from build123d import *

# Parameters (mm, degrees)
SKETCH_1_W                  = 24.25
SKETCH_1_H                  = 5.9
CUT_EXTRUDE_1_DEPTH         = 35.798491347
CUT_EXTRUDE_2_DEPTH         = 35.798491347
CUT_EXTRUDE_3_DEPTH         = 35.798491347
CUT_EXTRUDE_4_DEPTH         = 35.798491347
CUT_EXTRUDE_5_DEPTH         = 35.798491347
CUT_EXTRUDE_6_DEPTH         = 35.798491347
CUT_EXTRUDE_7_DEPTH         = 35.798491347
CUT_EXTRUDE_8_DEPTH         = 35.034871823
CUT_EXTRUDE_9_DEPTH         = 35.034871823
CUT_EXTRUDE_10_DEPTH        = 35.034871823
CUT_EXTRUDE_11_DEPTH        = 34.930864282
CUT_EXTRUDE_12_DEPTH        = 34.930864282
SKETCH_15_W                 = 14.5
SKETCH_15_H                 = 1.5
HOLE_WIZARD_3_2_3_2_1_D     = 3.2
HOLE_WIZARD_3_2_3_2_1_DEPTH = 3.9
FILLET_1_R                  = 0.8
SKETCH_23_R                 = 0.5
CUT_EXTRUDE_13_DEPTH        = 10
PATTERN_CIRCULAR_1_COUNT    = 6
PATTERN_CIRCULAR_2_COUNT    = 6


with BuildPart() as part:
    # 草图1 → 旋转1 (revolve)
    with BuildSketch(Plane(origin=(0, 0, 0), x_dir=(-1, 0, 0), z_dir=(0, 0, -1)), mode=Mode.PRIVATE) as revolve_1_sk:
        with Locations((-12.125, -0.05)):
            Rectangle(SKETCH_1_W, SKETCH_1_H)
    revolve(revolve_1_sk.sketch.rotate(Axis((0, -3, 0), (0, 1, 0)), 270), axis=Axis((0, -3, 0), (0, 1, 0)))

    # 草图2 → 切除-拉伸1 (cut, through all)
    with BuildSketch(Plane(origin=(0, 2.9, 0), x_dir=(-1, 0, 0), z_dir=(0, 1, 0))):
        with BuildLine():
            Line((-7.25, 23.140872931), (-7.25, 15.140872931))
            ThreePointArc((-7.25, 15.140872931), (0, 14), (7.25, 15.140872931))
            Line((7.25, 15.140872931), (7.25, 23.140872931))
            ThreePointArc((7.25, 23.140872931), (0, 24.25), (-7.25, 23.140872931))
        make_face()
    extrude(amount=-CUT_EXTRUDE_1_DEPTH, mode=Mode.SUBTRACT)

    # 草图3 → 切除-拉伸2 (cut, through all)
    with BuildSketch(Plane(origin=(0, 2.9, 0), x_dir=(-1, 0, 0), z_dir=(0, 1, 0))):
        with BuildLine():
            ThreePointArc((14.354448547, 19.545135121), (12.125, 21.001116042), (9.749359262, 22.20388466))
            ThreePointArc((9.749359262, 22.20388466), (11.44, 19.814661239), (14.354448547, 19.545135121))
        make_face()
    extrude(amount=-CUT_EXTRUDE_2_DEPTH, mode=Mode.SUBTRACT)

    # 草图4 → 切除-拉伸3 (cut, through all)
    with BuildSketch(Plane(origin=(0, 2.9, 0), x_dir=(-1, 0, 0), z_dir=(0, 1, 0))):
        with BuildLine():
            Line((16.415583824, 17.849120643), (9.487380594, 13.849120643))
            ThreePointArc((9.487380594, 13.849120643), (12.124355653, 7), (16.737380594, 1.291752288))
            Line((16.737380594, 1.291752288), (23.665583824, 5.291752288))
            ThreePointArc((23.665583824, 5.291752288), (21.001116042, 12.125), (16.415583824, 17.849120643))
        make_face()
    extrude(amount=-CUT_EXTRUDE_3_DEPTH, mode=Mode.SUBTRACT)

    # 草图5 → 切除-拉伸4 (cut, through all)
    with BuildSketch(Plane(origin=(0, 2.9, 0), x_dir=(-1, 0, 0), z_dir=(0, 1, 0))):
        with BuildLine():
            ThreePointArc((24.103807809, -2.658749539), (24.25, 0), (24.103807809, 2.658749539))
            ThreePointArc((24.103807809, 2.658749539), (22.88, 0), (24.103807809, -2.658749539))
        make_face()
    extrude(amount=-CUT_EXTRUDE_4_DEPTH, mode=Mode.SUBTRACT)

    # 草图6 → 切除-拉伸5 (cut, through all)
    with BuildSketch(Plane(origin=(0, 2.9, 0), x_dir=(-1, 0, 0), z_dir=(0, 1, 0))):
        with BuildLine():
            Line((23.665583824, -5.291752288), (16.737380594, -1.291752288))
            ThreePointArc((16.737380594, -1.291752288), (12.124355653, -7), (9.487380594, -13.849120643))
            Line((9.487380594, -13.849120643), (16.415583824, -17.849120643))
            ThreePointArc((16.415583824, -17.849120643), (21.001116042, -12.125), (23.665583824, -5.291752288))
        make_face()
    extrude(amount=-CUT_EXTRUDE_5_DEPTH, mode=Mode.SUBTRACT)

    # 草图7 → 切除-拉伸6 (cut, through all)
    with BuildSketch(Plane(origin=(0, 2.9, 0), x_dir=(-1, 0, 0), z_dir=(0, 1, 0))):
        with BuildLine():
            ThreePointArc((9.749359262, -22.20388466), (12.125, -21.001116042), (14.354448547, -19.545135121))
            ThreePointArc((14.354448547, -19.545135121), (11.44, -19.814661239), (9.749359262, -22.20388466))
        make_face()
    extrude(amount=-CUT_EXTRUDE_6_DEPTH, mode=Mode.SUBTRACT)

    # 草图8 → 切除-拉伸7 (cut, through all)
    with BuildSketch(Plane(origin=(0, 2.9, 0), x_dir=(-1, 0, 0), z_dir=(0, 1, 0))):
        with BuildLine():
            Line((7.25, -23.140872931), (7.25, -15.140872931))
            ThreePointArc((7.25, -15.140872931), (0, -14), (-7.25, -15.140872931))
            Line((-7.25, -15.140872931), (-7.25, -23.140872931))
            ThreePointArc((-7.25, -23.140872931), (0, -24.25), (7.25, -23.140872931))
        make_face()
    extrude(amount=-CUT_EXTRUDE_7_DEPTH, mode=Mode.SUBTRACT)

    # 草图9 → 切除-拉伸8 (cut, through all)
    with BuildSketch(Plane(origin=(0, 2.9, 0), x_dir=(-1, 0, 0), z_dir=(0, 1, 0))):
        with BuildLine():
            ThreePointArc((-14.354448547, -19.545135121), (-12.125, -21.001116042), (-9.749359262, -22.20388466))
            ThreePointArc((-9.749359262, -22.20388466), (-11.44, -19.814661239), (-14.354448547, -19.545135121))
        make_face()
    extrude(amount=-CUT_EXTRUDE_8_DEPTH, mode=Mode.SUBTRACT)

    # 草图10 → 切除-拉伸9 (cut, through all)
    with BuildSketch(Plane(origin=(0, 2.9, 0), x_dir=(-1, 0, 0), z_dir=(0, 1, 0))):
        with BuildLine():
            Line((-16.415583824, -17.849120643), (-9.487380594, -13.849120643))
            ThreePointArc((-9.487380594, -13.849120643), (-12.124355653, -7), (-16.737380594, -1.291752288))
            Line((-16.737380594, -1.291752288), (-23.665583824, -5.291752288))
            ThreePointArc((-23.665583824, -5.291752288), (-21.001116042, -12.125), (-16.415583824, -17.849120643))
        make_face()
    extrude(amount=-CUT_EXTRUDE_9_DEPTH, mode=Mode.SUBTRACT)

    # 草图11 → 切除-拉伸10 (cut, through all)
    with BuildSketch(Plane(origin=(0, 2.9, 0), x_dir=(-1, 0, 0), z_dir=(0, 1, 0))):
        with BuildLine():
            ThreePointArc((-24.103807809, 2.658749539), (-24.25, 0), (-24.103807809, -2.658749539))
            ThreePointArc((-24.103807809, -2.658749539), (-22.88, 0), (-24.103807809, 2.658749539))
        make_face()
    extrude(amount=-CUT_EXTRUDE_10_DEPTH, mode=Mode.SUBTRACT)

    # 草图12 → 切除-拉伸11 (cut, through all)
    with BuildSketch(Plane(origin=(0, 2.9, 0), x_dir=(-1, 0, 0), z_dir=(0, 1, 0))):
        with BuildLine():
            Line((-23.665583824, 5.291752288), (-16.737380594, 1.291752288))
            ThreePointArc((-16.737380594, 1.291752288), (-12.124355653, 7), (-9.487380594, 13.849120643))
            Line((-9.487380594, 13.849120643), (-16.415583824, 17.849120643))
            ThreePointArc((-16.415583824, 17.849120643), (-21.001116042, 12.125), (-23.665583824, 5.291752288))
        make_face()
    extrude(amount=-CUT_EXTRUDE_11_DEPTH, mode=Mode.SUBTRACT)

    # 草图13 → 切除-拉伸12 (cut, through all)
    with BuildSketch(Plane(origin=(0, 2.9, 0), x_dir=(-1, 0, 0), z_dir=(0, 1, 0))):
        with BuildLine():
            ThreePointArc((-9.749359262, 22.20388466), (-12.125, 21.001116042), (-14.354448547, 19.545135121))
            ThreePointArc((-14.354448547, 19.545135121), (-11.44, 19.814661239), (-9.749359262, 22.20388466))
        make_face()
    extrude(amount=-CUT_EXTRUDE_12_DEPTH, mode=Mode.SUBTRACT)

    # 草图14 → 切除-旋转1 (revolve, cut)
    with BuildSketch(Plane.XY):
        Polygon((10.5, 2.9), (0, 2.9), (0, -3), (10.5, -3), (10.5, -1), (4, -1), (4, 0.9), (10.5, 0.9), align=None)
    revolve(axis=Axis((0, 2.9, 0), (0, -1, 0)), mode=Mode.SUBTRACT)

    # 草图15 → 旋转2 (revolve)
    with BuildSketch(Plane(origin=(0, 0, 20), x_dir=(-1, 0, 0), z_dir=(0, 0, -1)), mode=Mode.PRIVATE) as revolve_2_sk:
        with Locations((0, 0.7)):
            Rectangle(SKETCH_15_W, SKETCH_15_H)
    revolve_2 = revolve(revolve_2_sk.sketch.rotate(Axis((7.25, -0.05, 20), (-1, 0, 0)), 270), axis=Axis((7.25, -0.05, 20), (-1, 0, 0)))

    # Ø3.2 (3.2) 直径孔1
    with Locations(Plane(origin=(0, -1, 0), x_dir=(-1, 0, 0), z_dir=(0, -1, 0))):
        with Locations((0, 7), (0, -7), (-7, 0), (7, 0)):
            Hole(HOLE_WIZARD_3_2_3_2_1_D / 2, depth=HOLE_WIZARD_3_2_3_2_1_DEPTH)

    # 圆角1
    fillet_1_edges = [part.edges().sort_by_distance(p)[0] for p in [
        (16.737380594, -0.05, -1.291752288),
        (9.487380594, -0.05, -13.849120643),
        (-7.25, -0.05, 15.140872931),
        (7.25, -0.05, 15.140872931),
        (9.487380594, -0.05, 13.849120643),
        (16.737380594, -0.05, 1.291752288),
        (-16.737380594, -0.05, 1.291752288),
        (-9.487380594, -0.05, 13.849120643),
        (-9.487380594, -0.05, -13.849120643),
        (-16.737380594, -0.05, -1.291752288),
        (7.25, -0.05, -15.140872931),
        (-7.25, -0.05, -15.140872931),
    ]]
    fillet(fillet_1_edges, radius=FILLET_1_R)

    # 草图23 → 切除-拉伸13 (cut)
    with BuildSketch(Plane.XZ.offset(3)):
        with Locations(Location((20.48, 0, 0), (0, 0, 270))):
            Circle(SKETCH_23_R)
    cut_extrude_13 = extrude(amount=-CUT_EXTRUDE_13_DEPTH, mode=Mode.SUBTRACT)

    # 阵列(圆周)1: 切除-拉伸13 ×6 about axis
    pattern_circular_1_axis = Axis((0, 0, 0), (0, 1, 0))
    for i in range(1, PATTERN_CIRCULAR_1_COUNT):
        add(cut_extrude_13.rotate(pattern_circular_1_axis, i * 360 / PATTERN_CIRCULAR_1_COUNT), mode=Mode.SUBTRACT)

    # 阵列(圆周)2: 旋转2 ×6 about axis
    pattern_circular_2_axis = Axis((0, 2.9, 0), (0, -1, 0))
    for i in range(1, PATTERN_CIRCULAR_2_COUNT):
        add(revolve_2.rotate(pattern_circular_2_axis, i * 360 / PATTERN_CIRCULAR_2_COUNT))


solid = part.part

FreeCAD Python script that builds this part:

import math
import FreeCAD as App
import Part
import Sketcher

V = App.Vector
Q = App.Units.Quantity


def edges_at(feature, points):
    """Names of the edges that pass closest to the given points."""
    edges = feature.Shape.Edges
    near = lambda p: min(range(len(edges)), key=lambda i: edges[i].distToShape(Part.Vertex(*p))[0])
    return sorted({f"Edge{near(p) + 1}" for p in points})

doc = App.newDocument("Part")
body = doc.addObject("PartDesign::Body", "Body")

sketch1 = body.newObject("Sketcher::SketchObject", "Sketch")
sketch1.AttachmentSupport = (doc.getObject("XY_Plane"), [""])
sketch1.MapMode = "FlatFace"
sketch1.addGeometry(Part.LineSegment(V(24.25, 2.9, 0), V(24.25, -3, 0)), False)
sketch1.addGeometry(Part.LineSegment(V(24.25, -3, 0), V(0, -3, 0)), False)
sketch1.addGeometry(Part.LineSegment(V(0, -3, 0), V(0, 2.9, 0)), False)
sketch1.addGeometry(Part.LineSegment(V(0, 2.9, 0), V(24.25, 2.9, 0)), False)
sketch1.addConstraint(Sketcher.Constraint("Coincident", 0, 2, 1, 1))
sketch1.addConstraint(Sketcher.Constraint("Coincident", 1, 2, 2, 1))
sketch1.addConstraint(Sketcher.Constraint("Coincident", 2, 2, 3, 1))
sketch1.addConstraint(Sketcher.Constraint("Coincident", 3, 2, 0, 1))
sketch1.addConstraint(Sketcher.Constraint("Vertical", 0))
sketch1.addConstraint(Sketcher.Constraint("Horizontal", 1))
sketch1.addConstraint(Sketcher.Constraint("Vertical", 2))
sketch1.addConstraint(Sketcher.Constraint("Horizontal", 3))
sketch1.addConstraint(Sketcher.Constraint("PointOnObject", 1, 2, -2))
sketch1.addConstraint(Sketcher.Constraint("DistanceY", 0, 2, 0, 1, 5.9))
sketch1.addConstraint(Sketcher.Constraint("DistanceY", 0, 2, -1, 1, 3.0))
sketch1.addConstraint(Sketcher.Constraint("DistanceX", 1, 2, 1, 1, 24.25))
revolution = body.newObject("PartDesign::Revolution", "Revolution")
revolution.Profile = sketch1
revolution.ReferenceAxis = (sketch1, ["V_Axis"])
revolution.Angle = 360

sketch2 = body.newObject("Sketcher::SketchObject", "Sketch001")
sketch2.AttachmentSupport = (doc.getObject("XZ_Plane"), [""])
sketch2.MapMode = "FlatFace"
sketch2.AttachmentOffset = App.Placement(V(0, 0, -2.9), App.Rotation())
sketch2.addGeometry(Part.LineSegment(V(7.25, 23.140873, 0), V(7.25, 15.140873, 0)), False)
sketch2.addGeometry(Part.ArcOfCircle(Part.Circle(V(0, 37.606525, 0), V(0, 0, 1), 23.606525), math.radians(-107.885662), math.radians(-72.114338)), False)
sketch2.addGeometry(Part.LineSegment(V(-7.25, 15.140873, 0), V(-7.25, 23.140873, 0)), False)
sketch2.addGeometry(Part.ArcOfCircle(Part.Circle(V(0, 0, 0), V(0, 0, 1), 24.25), math.radians(72.604306), math.radians(107.395694)), False)
sketch2.addConstraint(Sketcher.Constraint("Coincident", 0, 2, 1, 2))
sketch2.addConstraint(Sketcher.Constraint("Coincident", 1, 1, 2, 1))
sketch2.addConstraint(Sketcher.Constraint("Coincident", 2, 2, 3, 2))
sketch2.addConstraint(Sketcher.Constraint("Coincident", 3, 1, 0, 1))
sketch2.addConstraint(Sketcher.Constraint("Vertical", 0))
sketch2.addConstraint(Sketcher.Constraint("Vertical", 2))
sketch2.addConstraint(Sketcher.Constraint("Coincident", 3, 3, -1, 1))
sketch2.addConstraint(Sketcher.Constraint("Symmetric", 0, 2, 1, 1, -2))
sketch2.addConstraint(Sketcher.Constraint("DistanceY", 0, 2, 0, 1, 8.0))
sketch2.addConstraint(Sketcher.Constraint("Radius", 3, 24.25))
sketch2.addConstraint(Sketcher.Constraint("DistanceX", 1, 1, 0, 2, 14.5))
sketch2.addConstraint(Sketcher.Constraint("Radius", 1, 23.606525))
pocket1 = body.newObject("PartDesign::Pocket", "Pocket")
pocket1.Profile = sketch2
pocket1.Type = "ThroughAll"
pocket1.Reversed = True

sketch3 = body.newObject("Sketcher::SketchObject", "Sketch002")
sketch3.AttachmentSupport = (doc.getObject("XZ_Plane"), [""])
sketch3.MapMode = "FlatFace"
sketch3.AttachmentOffset = App.Placement(V(0, 0, -2.9), App.Rotation())
sketch3.addGeometry(Part.ArcOfCircle(Part.Circle(V(0, 0, 0), V(0, 0, 1), 24.25), math.radians(113.705485), math.radians(126.294515)), False)
sketch3.addGeometry(Part.ArcOfCircle(Part.Circle(V(-13.19, 22.84575, 0), V(0, 0, 1), 3.5), math.radians(-109.432711), math.radians(-10.567289)), False)
sketch3.addConstraint(Sketcher.Constraint("Coincident", 0, 1, 1, 2))
sketch3.addConstraint(Sketcher.Constraint("Coincident", 1, 1, 0, 2))
sketch3.addConstraint(Sketcher.Constraint("Coincident", 0, 3, -1, 1))
sketch3.addConstraint(Sketcher.Constraint("Radius", 1, 3.5))
sketch3.addConstraint(Sketcher.Constraint("Radius", 0, 24.25))
sketch3.addConstraint(Sketcher.Constraint("DistanceX", 1, 3, -1, 1, 13.19))
sketch3.addConstraint(Sketcher.Constraint("DistanceY", -1, 1, 1, 3, 22.84575))
pocket2 = body.newObject("PartDesign::Pocket", "Pocket001")
pocket2.Profile = sketch3
pocket2.Type = "ThroughAll"
pocket2.Reversed = True

sketch4 = body.newObject("Sketcher::SketchObject", "Sketch003")
sketch4.AttachmentSupport = (doc.getObject("XZ_Plane"), [""])
sketch4.MapMode = "FlatFace"
sketch4.AttachmentOffset = App.Placement(V(0, 0, -2.9), App.Rotation())
sketch4.addGeometry(Part.LineSegment(V(-16.415584, 17.849121, 0), V(-9.487381, 13.849121, 0)), False)
sketch4.addGeometry(Part.ArcOfCircle(Part.Circle(V(-32.568206, 18.803263, 0), V(0, 0, 1), 23.606525), math.radians(-47.885662), math.radians(-12.114338)), False)
sketch4.addGeometry(Part.LineSegment(V(-16.737381, 1.291752, 0), V(-23.665584, 5.291752, 0)), False)
sketch4.addGeometry(Part.ArcOfCircle(Part.Circle(V(0, 0, 0), V(0, 0, 1), 24.25), math.radians(132.604306), math.radians(167.395694)), False)
sketch4.addConstraint(Sketcher.Constraint("Coincident", 0, 2, 1, 2))
sketch4.addConstraint(Sketcher.Constraint("Coincident", 1, 1, 2, 1))
sketch4.addConstraint(Sketcher.Constraint("Coincident", 2, 2, 3, 2))
sketch4.addConstraint(Sketcher.Constraint("Coincident", 3, 1, 0, 1))
sketch4.addConstraint(Sketcher.Constraint("Coincident", 3, 3, -1, 1))
sketch4.addConstraint(Sketcher.Constraint("Parallel", 0, 2))
sketch4.addConstraint(Sketcher.Constraint("Equal", 0, 2))
sketch4.addConstraint(Sketcher.Constraint("Angle", 0, Q("-30 deg")))
sketch4.addConstraint(Sketcher.Constraint("Radius", 3, 24.25))
sketch4.addConstraint(Sketcher.Constraint("Distance", 0, 8.0))
sketch4.addConstraint(Sketcher.Constraint("DistanceX", 1, 1, 0, 2, 7.25))
sketch4.addConstraint(Sketcher.Constraint("Radius", 1, 23.606525))
sketch4.addConstraint(Sketcher.Constraint("DistanceX", 0, 2, -1, 1, 9.487381))
pocket3 = body.newObject("PartDesign::Pocket", "Pocket002")
pocket3.Profile = sketch4
pocket3.Type = "ThroughAll"
pocket3.Reversed = True

sketch5 = body.newObject("Sketcher::SketchObject", "Sketch004")
sketch5.AttachmentSupport = (doc.getObject("XZ_Plane"), [""])
sketch5.MapMode = "FlatFace"
sketch5.AttachmentOffset = App.Placement(V(0, 0, -2.9), App.Rotation())
sketch5.addGeometry(Part.ArcOfCircle(Part.Circle(V(0, 0, 0), V(0, 0, 1), 24.25), math.radians(173.705485), math.radians(186.294515)), False)
sketch5.addGeometry(Part.ArcOfCircle(Part.Circle(V(-26.38, 0, 0), V(0, 0, 1), 3.5), math.radians(-49.432711), math.radians(49.432711)), False)
sketch5.addConstraint(Sketcher.Constraint("Coincident", 0, 1, 1, 2))
sketch5.addConstraint(Sketcher.Constraint("Coincident", 1, 1, 0, 2))
sketch5.addConstraint(Sketcher.Constraint("Coincident", 0, 3, -1, 1))
sketch5.addConstraint(Sketcher.Constraint("PointOnObject", 1, 3, -1))
sketch5.addConstraint(Sketcher.Constraint("Radius", 1, 3.5))
sketch5.addConstraint(Sketcher.Constraint("Radius", 0, 24.25))
sketch5.addConstraint(Sketcher.Constraint("DistanceX", 1, 3, -1, 1, 26.38))
pocket4 = body.newObject("PartDesign::Pocket", "Pocket003")
pocket4.Profile = sketch5
pocket4.Type = "ThroughAll"
pocket4.Reversed = True

sketch6 = body.newObject("Sketcher::SketchObject", "Sketch005")
sketch6.AttachmentSupport = (doc.getObject("XZ_Plane"), [""])
sketch6.MapMode = "FlatFace"
sketch6.AttachmentOffset = App.Placement(V(0, 0, -2.9), App.Rotation())
sketch6.addGeometry(Part.LineSegment(V(-23.665584, -5.291752, 0), V(-16.737381, -1.291752, 0)), False)
sketch6.addGeometry(Part.ArcOfCircle(Part.Circle(V(-32.568206, -18.803263, 0), V(0, 0, 1), 23.606525), math.radians(12.114338), math.radians(47.885662)), False)
sketch6.addGeometry(Part.LineSegment(V(-9.487381, -13.849121, 0), V(-16.415584, -17.849121, 0)), False)
sketch6.addGeometry(Part.ArcOfCircle(Part.Circle(V(0, 0, 0), V(0, 0, 1), 24.25), math.radians(-167.395694), math.radians(-132.604306)), False)
sketch6.addConstraint(Sketcher.Constraint("Coincident", 0, 2, 1, 2))
sketch6.addConstraint(Sketcher.Constraint("Coincident", 1, 1, 2, 1))
sketch6.addConstraint(Sketcher.Constraint("Coincident", 2, 2, 3, 2))
sketch6.addConstraint(Sketcher.Constraint("Coincident", 3, 1, 0, 1))
sketch6.addConstraint(Sketcher.Constraint("Coincident", 3, 3, -1, 1))
sketch6.addConstraint(Sketcher.Constraint("Parallel", 0, 2))
sketch6.addConstraint(Sketcher.Constraint("Equal", 0, 2))
sketch6.addConstraint(Sketcher.Constraint("Angle", 0, Q("30 deg")))
sketch6.addConstraint(Sketcher.Constraint("Radius", 3, 24.25))
sketch6.addConstraint(Sketcher.Constraint("Distance", 0, 8.0))
sketch6.addConstraint(Sketcher.Constraint("DistanceX", 0, 2, 1, 1, 7.25))
sketch6.addConstraint(Sketcher.Constraint("Radius", 1, 23.606525))
sketch6.addConstraint(Sketcher.Constraint("DistanceX", 0, 2, -1, 1, 16.737381))
pocket5 = body.newObject("PartDesign::Pocket", "Pocket004")
pocket5.Profile = sketch6
pocket5.Type = "ThroughAll"
pocket5.Reversed = True

sketch7 = body.newObject("Sketcher::SketchObject", "Sketch006")
sketch7.AttachmentSupport = (doc.getObject("XZ_Plane"), [""])
sketch7.MapMode = "FlatFace"
sketch7.AttachmentOffset = App.Placement(V(0, 0, -2.9), App.Rotation())
sketch7.addGeometry(Part.ArcOfCircle(Part.Circle(V(0, 0, 0), V(0, 0, 1), 24.25), math.radians(-126.294515), math.radians(-113.705485)), False)
sketch7.addGeometry(Part.ArcOfCircle(Part.Circle(V(-13.19, -22.84575, 0), V(0, 0, 1), 3.5), math.radians(10.567289), math.radians(109.432711)), False)
sketch7.addConstraint(Sketcher.Constraint("Coincident", 0, 1, 1, 2))
sketch7.addConstraint(Sketcher.Constraint("Coincident", 1, 1, 0, 2))
sketch7.addConstraint(Sketcher.Constraint("Coincident", 0, 3, -1, 1))
sketch7.addConstraint(Sketcher.Constraint("Radius", 1, 3.5))
sketch7.addConstraint(Sketcher.Constraint("Radius", 0, 24.25))
sketch7.addConstraint(Sketcher.Constraint("DistanceX", 1, 3, -1, 1, 13.19))
sketch7.addConstraint(Sketcher.Constraint("DistanceY", 1, 3, -1, 1, 22.84575))
pocket6 = body.newObject("PartDesign::Pocket", "Pocket005")
pocket6.Profile = sketch7
pocket6.Type = "ThroughAll"
pocket6.Reversed = True

sketch8 = body.newObject("Sketcher::SketchObject", "Sketch007")
sketch8.AttachmentSupport = (doc.getObject("XZ_Plane"), [""])
sketch8.MapMode = "FlatFace"
sketch8.AttachmentOffset = App.Placement(V(0, 0, -2.9), App.Rotation())
sketch8.addGeometry(Part.LineSegment(V(-7.25, -23.140873, 0), V(-7.25, -15.140873, 0)), False)
sketch8.addGeometry(Part.ArcOfCircle(Part.Circle(V(0, -37.606525, 0), V(0, 0, 1), 23.606525), math.radians(72.114338), math.radians(107.885662)), False)
sketch8.addGeometry(Part.LineSegment(V(7.25, -15.140873, 0), V(7.25, -23.140873, 0)), False)
sketch8.addGeometry(Part.ArcOfCircle(Part.Circle(V(0, 0, 0), V(0, 0, 1), 24.25), math.radians(-107.395694), math.radians(-72.604306)), False)
sketch8.addConstraint(Sketcher.Constraint("Coincident", 0, 2, 1, 2))
sketch8.addConstraint(Sketcher.Constraint("Coincident", 1, 1, 2, 1))
sketch8.addConstraint(Sketcher.Constraint("Coincident", 2, 2, 3, 2))
sketch8.addConstraint(Sketcher.Constraint("Coincident", 3, 1, 0, 1))
sketch8.addConstraint(Sketcher.Constraint("Vertical", 0))
sketch8.addConstraint(Sketcher.Constraint("Vertical", 2))
sketch8.addConstraint(Sketcher.Constraint("Coincident", 3, 3, -1, 1))
sketch8.addConstraint(Sketcher.Constraint("Symmetric", 0, 2, 1, 1, -2))
sketch8.addConstraint(Sketcher.Constraint("DistanceY", 0, 1, 0, 2, 8.0))
sketch8.addConstraint(Sketcher.Constraint("Radius", 3, 24.25))
sketch8.addConstraint(Sketcher.Constraint("DistanceX", 0, 2, 1, 1, 14.5))
sketch8.addConstraint(Sketcher.Constraint("Radius", 1, 23.606525))
pocket7 = body.newObject("PartDesign::Pocket", "Pocket006")
pocket7.Profile = sketch8
pocket7.Type = "ThroughAll"
pocket7.Reversed = True

sketch9 = body.newObject("Sketcher::SketchObject", "Sketch008")
sketch9.AttachmentSupport = (doc.getObject("XZ_Plane"), [""])
sketch9.MapMode = "FlatFace"
sketch9.AttachmentOffset = App.Placement(V(0, 0, -2.9), App.Rotation())
sketch9.addGeometry(Part.ArcOfCircle(Part.Circle(V(0, 0, 0), V(0, 0, 1), 24.25), math.radians(-66.294515), math.radians(-53.705485)), False)
sketch9.addGeometry(Part.ArcOfCircle(Part.Circle(V(13.19, -22.84575, 0), V(0, 0, 1), 3.5), math.radians(70.567289), math.radians(169.432711)), False)
sketch9.addConstraint(Sketcher.Constraint("Coincident", 0, 1, 1, 2))
sketch9.addConstraint(Sketcher.Constraint("Coincident", 1, 1, 0, 2))
sketch9.addConstraint(Sketcher.Constraint("Coincident", 0, 3, -1, 1))
sketch9.addConstraint(Sketcher.Constraint("Radius", 1, 3.5))
sketch9.addConstraint(Sketcher.Constraint("Radius", 0, 24.25))
sketch9.addConstraint(Sketcher.Constraint("DistanceX", -1, 1, 1, 3, 13.19))
sketch9.addConstraint(Sketcher.Constraint("DistanceY", 1, 3, -1, 1, 22.84575))
pocket8 = body.newObject("PartDesign::Pocket", "Pocket007")
pocket8.Profile = sketch9
pocket8.Type = "ThroughAll"
pocket8.Reversed = True

sketch10 = body.newObject("Sketcher::SketchObject", "Sketch009")
sketch10.AttachmentSupport = (doc.getObject("XZ_Plane"), [""])
sketch10.MapMode = "FlatFace"
sketch10.AttachmentOffset = App.Placement(V(0, 0, -2.9), App.Rotation())
sketch10.addGeometry(Part.LineSegment(V(16.415584, -17.849121, 0), V(9.487381, -13.849121, 0)), False)
sketch10.addGeometry(Part.ArcOfCircle(Part.Circle(V(32.568206, -18.803263, 0), V(0, 0, 1), 23.606525), math.radians(132.114338), math.radians(167.885662)), False)
sketch10.addGeometry(Part.LineSegment(V(16.737381, -1.291752, 0), V(23.665584, -5.291752, 0)), False)
sketch10.addGeometry(Part.ArcOfCircle(Part.Circle(V(0, 0, 0), V(0, 0, 1), 24.25), math.radians(-47.395694), math.radians(-12.604306)), False)
sketch10.addConstraint(Sketcher.Constraint("Coincident", 0, 2, 1, 2))
sketch10.addConstraint(Sketcher.Constraint("Coincident", 1, 1, 2, 1))
sketch10.addConstraint(Sketcher.Constraint("Coincident", 2, 2, 3, 2))
sketch10.addConstraint(Sketcher.Constraint("Coincident", 3, 1, 0, 1))
sketch10.addConstraint(Sketcher.Constraint("Coincident", 3, 3, -1, 1))
sketch10.addConstraint(Sketcher.Constraint("Parallel", 0, 2))
sketch10.addConstraint(Sketcher.Constraint("Equal", 0, 2))
sketch10.addConstraint(Sketcher.Constraint("Angle", 0, Q("150 deg")))
sketch10.addConstraint(Sketcher.Constraint("Radius", 3, 24.25))
sketch10.addConstraint(Sketcher.Constraint("Distance", 0, 8.0))
sketch10.addConstraint(Sketcher.Constraint("DistanceX", 0, 2, 1, 1, 7.25))
sketch10.addConstraint(Sketcher.Constraint("Radius", 1, 23.606525))
sketch10.addConstraint(Sketcher.Constraint("DistanceX", -1, 1, 0, 2, 9.487381))
pocket9 = body.newObject("PartDesign::Pocket", "Pocket008")
pocket9.Profile = sketch10
pocket9.Type = "ThroughAll"
pocket9.Reversed = True

sketch11 = body.newObject("Sketcher::SketchObject", "Sketch010")
sketch11.AttachmentSupport = (doc.getObject("XZ_Plane"), [""])
sketch11.MapMode = "FlatFace"
sketch11.AttachmentOffset = App.Placement(V(0, 0, -2.9), App.Rotation())
sketch11.addGeometry(Part.ArcOfCircle(Part.Circle(V(0, 0, 0), V(0, 0, 1), 24.25), math.radians(-6.294515), math.radians(6.294515)), False)
sketch11.addGeometry(Part.ArcOfCircle(Part.Circle(V(26.38, 0, 0), V(0, 0, 1), 3.5), math.radians(130.567289), math.radians(229.432711)), False)
sketch11.addConstraint(Sketcher.Constraint("Coincident", 0, 1, 1, 2))
sketch11.addConstraint(Sketcher.Constraint("Coincident", 1, 1, 0, 2))
sketch11.addConstraint(Sketcher.Constraint("Coincident", 0, 3, -1, 1))
sketch11.addConstraint(Sketcher.Constraint("PointOnObject", 1, 3, -1))
sketch11.addConstraint(Sketcher.Constraint("Radius", 1, 3.5))
sketch11.addConstraint(Sketcher.Constraint("Radius", 0, 24.25))
sketch11.addConstraint(Sketcher.Constraint("DistanceX", -1, 1, 1, 3, 26.38))
pocket10 = body.newObject("PartDesign::Pocket", "Pocket009")
pocket10.Profile = sketch11
pocket10.Type = "ThroughAll"
pocket10.Reversed = True

sketch12 = body.newObject("Sketcher::SketchObject", "Sketch011")
sketch12.AttachmentSupport = (doc.getObject("XZ_Plane"), [""])
sketch12.MapMode = "FlatFace"
sketch12.AttachmentOffset = App.Placement(V(0, 0, -2.9), App.Rotation())
sketch12.addGeometry(Part.LineSegment(V(23.665584, 5.291752, 0), V(16.737381, 1.291752, 0)), False)
sketch12.addGeometry(Part.ArcOfCircle(Part.Circle(V(32.568206, 18.803263, 0), V(0, 0, 1), 23.606525), math.radians(-167.885662), math.radians(-132.114338)), False)
sketch12.addGeometry(Part.LineSegment(V(9.487381, 13.849121, 0), V(16.415584, 17.849121, 0)), False)
sketch12.addGeometry(Part.ArcOfCircle(Part.Circle(V(0, 0, 0), V(0, 0, 1), 24.25), math.radians(12.604306), math.radians(47.395694)), False)
sketch12.addConstraint(Sketcher.Constraint("Coincident", 0, 2, 1, 2))
sketch12.addConstraint(Sketcher.Constraint("Coincident", 1, 1, 2, 1))
sketch12.addConstraint(Sketcher.Constraint("Coincident", 2, 2, 3, 2))
sketch12.addConstraint(Sketcher.Constraint("Coincident", 3, 1, 0, 1))
sketch12.addConstraint(Sketcher.Constraint("Coincident", 3, 3, -1, 1))
sketch12.addConstraint(Sketcher.Constraint("Parallel", 0, 2))
sketch12.addConstraint(Sketcher.Constraint("Equal", 0, 2))
sketch12.addConstraint(Sketcher.Constraint("Angle", 0, Q("-150 deg")))
sketch12.addConstraint(Sketcher.Constraint("Radius", 3, 24.25))
sketch12.addConstraint(Sketcher.Constraint("Distance", 0, 8.0))
sketch12.addConstraint(Sketcher.Constraint("DistanceX", 1, 1, 0, 2, 7.25))
sketch12.addConstraint(Sketcher.Constraint("Radius", 1, 23.606525))
sketch12.addConstraint(Sketcher.Constraint("DistanceX", -1, 1, 0, 2, 16.737381))
pocket11 = body.newObject("PartDesign::Pocket", "Pocket010")
pocket11.Profile = sketch12
pocket11.Type = "ThroughAll"
pocket11.Reversed = True

sketch13 = body.newObject("Sketcher::SketchObject", "Sketch012")
sketch13.AttachmentSupport = (doc.getObject("XZ_Plane"), [""])
sketch13.MapMode = "FlatFace"
sketch13.AttachmentOffset = App.Placement(V(0, 0, -2.9), App.Rotation())
sketch13.addGeometry(Part.ArcOfCircle(Part.Circle(V(0, 0, 0), V(0, 0, 1), 24.25), math.radians(53.705485), math.radians(66.294515)), False)
sketch13.addGeometry(Part.ArcOfCircle(Part.Circle(V(13.19, 22.84575, 0), V(0, 0, 1), 3.5), math.radians(-169.432711), math.radians(-70.567289)), False)
sketch13.addConstraint(Sketcher.Constraint("Coincident", 0, 1, 1, 2))
sketch13.addConstraint(Sketcher.Constraint("Coincident", 1, 1, 0, 2))
sketch13.addConstraint(Sketcher.Constraint("Coincident", 0, 3, -1, 1))
sketch13.addConstraint(Sketcher.Constraint("Radius", 1, 3.5))
sketch13.addConstraint(Sketcher.Constraint("Radius", 0, 24.25))
sketch13.addConstraint(Sketcher.Constraint("DistanceX", -1, 1, 1, 3, 13.19))
sketch13.addConstraint(Sketcher.Constraint("DistanceY", -1, 1, 1, 3, 22.84575))
pocket12 = body.newObject("PartDesign::Pocket", "Pocket011")
pocket12.Profile = sketch13
pocket12.Type = "ThroughAll"
pocket12.Reversed = True

sketch14 = body.newObject("Sketcher::SketchObject", "Sketch013")
sketch14.AttachmentSupport = (doc.getObject("XY_Plane"), [""])
sketch14.MapMode = "FlatFace"
sketch14.addGeometry(Part.LineSegment(V(10.5, 2.9, 0), V(0, 2.9, 0)), False)
sketch14.addGeometry(Part.LineSegment(V(0, 2.9, 0), V(0, -3, 0)), False)
sketch14.addGeometry(Part.LineSegment(V(0, -3, 0), V(10.5, -3, 0)), False)
sketch14.addGeometry(Part.LineSegment(V(10.5, -3, 0), V(10.5, -1, 0)), False)
sketch14.addGeometry(Part.LineSegment(V(10.5, -1, 0), V(4, -1, 0)), False)
sketch14.addGeometry(Part.LineSegment(V(4, -1, 0), V(4, 0.9, 0)), False)
sketch14.addGeometry(Part.LineSegment(V(4, 0.9, 0), V(10.5, 0.9, 0)), False)
sketch14.addGeometry(Part.LineSegment(V(10.5, 0.9, 0), V(10.5, 2.9, 0)), False)
sketch14.addConstraint(Sketcher.Constraint("Coincident", 0, 2, 1, 1))
sketch14.addConstraint(Sketcher.Constraint("Coincident", 1, 2, 2, 1))
sketch14.addConstraint(Sketcher.Constraint("Coincident", 2, 2, 3, 1))
sketch14.addConstraint(Sketcher.Constraint("Coincident", 3, 2, 4, 1))
sketch14.addConstraint(Sketcher.Constraint("Coincident", 4, 2, 5, 1))
sketch14.addConstraint(Sketcher.Constraint("Coincident", 5, 2, 6, 1))
sketch14.addConstraint(Sketcher.Constraint("Coincident", 6, 2, 7, 1))
sketch14.addConstraint(Sketcher.Constraint("Coincident", 7, 2, 0, 1))
sketch14.addConstraint(Sketcher.Constraint("Horizontal", 0))
sketch14.addConstraint(Sketcher.Constraint("Vertical", 1))
sketch14.addConstraint(Sketcher.Constraint("Horizontal", 2))
sketch14.addConstraint(Sketcher.Constraint("Vertical", 3))
sketch14.addConstraint(Sketcher.Constraint("Horizontal", 4))
sketch14.addConstraint(Sketcher.Constraint("Vertical", 5))
sketch14.addConstraint(Sketcher.Constraint("Horizontal", 6))
sketch14.addConstraint(Sketcher.Constraint("Vertical", 7))
sketch14.addConstraint(Sketcher.Constraint("PointOnObject", 0, 2, -2))
sketch14.addConstraint(Sketcher.Constraint("Vertical", 3, 2, 6, 2))
sketch14.addConstraint(Sketcher.Constraint("Equal", 3, 7))
sketch14.addConstraint(Sketcher.Constraint("DistanceY", 3, 1, 3, 2, 2.0))
sketch14.addConstraint(Sketcher.Constraint("DistanceX", 0, 2, 0, 1, 10.5))
sketch14.addConstraint(Sketcher.Constraint("DistanceX", 4, 2, 4, 1, 6.5))
sketch14.addConstraint(Sketcher.Constraint("DistanceY", 1, 2, 1, 1, 5.9))
sketch14.addConstraint(Sketcher.Constraint("DistanceY", 1, 2, -1, 1, 3.0))
groove = body.newObject("PartDesign::Groove", "Groove")
groove.Profile = sketch14
groove.ReferenceAxis = (sketch14, ["V_Axis"])
groove.Angle = 360

sketch15 = body.newObject("Sketcher::SketchObject", "Sketch014")
sketch15.AttachmentSupport = (doc.getObject("XY_Plane"), [""])
sketch15.MapMode = "FlatFace"
sketch15.AttachmentOffset = App.Placement(V(0, 0, 20), App.Rotation())
sketch15.addGeometry(Part.LineSegment(V(7.25, 1.45, 0), V(7.25, -0.05, 0)), False)
sketch15.addGeometry(Part.LineSegment(V(7.25, -0.05, 0), V(-7.25, -0.05, 0)), False)
sketch15.addGeometry(Part.LineSegment(V(-7.25, -0.05, 0), V(-7.25, 1.45, 0)), False)
sketch15.addGeometry(Part.LineSegment(V(-7.25, 1.45, 0), V(7.25, 1.45, 0)), False)
sketch15.addGeometry(Part.LineSegment(V(7.25, -0.05, 0), V(-7.25, -0.05, 0)), True)
sketch15.addConstraint(Sketcher.Constraint("Coincident", 0, 2, 1, 1))
sketch15.addConstraint(Sketcher.Constraint("Coincident", 1, 2, 2, 1))
sketch15.addConstraint(Sketcher.Constraint("Coincident", 2, 2, 3, 1))
sketch15.addConstraint(Sketcher.Constraint("Coincident", 3, 2, 0, 1))
sketch15.addConstraint(Sketcher.Constraint("Vertical", 0))
sketch15.addConstraint(Sketcher.Constraint("Horizontal", 1))
sketch15.addConstraint(Sketcher.Constraint("Vertical", 2))
sketch15.addConstraint(Sketcher.Constraint("Horizontal", 3))
sketch15.addConstraint(Sketcher.Constraint("Horizontal", 4))
sketch15.addConstraint(Sketcher.Constraint("Coincident", 4, 1, 0, 2))
sketch15.addConstraint(Sketcher.Constraint("Vertical", 2, 2, 4, 2))
sketch15.addConstraint(Sketcher.Constraint("DistanceX", 1, 2, 1, 1, 14.5))
sketch15.addConstraint(Sketcher.Constraint("DistanceY", 0, 2, 0, 1, 1.5))
sketch15.addConstraint(Sketcher.Constraint("DistanceX", -1, 1, 0, 2, 7.25))
sketch15.addConstraint(Sketcher.Constraint("DistanceY", 0, 2, -1, 1, 0.05))
revolution2 = body.newObject("PartDesign::Revolution", "Revolution001")
revolution2.Profile = sketch15
revolution2.ReferenceAxis = (sketch15, ["Axis0"])
revolution2.Angle = 360

sketch16 = body.newObject("Sketcher::SketchObject", "Sketch015")
sketch16.AttachmentSupport = (doc.getObject("XZ_Plane"), [""])
sketch16.MapMode = "FlatFace"
sketch16.AttachmentOffset = App.Placement(V(0, 0, 1), App.Rotation())
sketch16.addGeometry(Part.Circle(V(0, -7, 0), V(0, 0, 1), 1.6), False)
sketch16.addGeometry(Part.Circle(V(0, 7, 0), V(0, 0, 1), 1.6), False)
sketch16.addGeometry(Part.Circle(V(7, 0, 0), V(0, 0, 1), 1.6), False)
sketch16.addGeometry(Part.Circle(V(-7, 0, 0), V(0, 0, 1), 1.6), False)
sketch16.addConstraint(Sketcher.Constraint("Equal", 0, 1))
sketch16.addConstraint(Sketcher.Constraint("Equal", 1, 2))
sketch16.addConstraint(Sketcher.Constraint("Equal", 2, 3))
sketch16.addConstraint(Sketcher.Constraint("Symmetric", 0, 3, 1, 3, -1, 1))
sketch16.addConstraint(Sketcher.Constraint("Symmetric", 2, 3, 3, 3, -1, 1))
sketch16.addConstraint(Sketcher.Constraint("PointOnObject", 0, 3, -2))
sketch16.addConstraint(Sketcher.Constraint("PointOnObject", 2, 3, -1))
sketch16.addConstraint(Sketcher.Constraint("Diameter", 0, 3.2))
sketch16.addConstraint(Sketcher.Constraint("DistanceY", 0, 3, -1, 1, 7.0))
sketch16.addConstraint(Sketcher.Constraint("DistanceX", -1, 1, 2, 3, 7.0))
doc.recompute()
hole = body.newObject("PartDesign::Hole", "Hole")
hole.Profile = sketch16
hole.ThreadType = "None"
hole.Diameter = 3.2
hole.DepthType = "Dimension"
hole.Depth = 3.9
hole.DrillPoint = "Flat"
doc.recompute()

fillet = body.newObject("PartDesign::Fillet", "Fillet")
fillet.Base = (hole, edges_at(hole, [
    (16.737, -0.05, -1.292),
    (9.487, -0.05, -13.849),
    (-7.25, -0.05, 15.141),
    (7.25, -0.05, 15.141),
    (9.487, -0.05, 13.849),
    (16.737, -0.05, 1.292),
    (-16.737, -0.05, 1.292),
    (-9.487, -0.05, 13.849),
    (-9.487, -0.05, -13.849),
    (-16.737, -0.05, -1.292),
    (7.25, -0.05, -15.141),
    (-7.25, -0.05, -15.141),
]))
fillet.Radius = 0.8

sketch17 = body.newObject("Sketcher::SketchObject", "Sketch016")
sketch17.AttachmentSupport = (doc.getObject("XZ_Plane"), [""])
sketch17.MapMode = "FlatFace"
sketch17.AttachmentOffset = App.Placement(V(0, 0, 3), App.Rotation())
sketch17.addGeometry(Part.Circle(V(20.48, 0, 0), V(0, 0, 1), 0.5), False)
sketch17.addConstraint(Sketcher.Constraint("PointOnObject", 0, 3, -1))
sketch17.addConstraint(Sketcher.Constraint("Diameter", 0, 1.0))
sketch17.addConstraint(Sketcher.Constraint("DistanceX", -1, 1, 0, 3, 20.48))
pocket13 = body.newObject("PartDesign::Pocket", "Pocket012")
pocket13.Profile = sketch17
pocket13.Length = 10
doc.recompute()

polarpattern = body.newObject("PartDesign::PolarPattern", "PolarPattern")
polarpattern.Originals = [pocket13]
polarpattern.Axis = (doc.getObject("Y_Axis"), [""])
polarpattern.Angle = 360
polarpattern.Occurrences = 6
body.Tip = polarpattern
doc.recompute()

polarpattern2 = body.newObject("PartDesign::PolarPattern", "PolarPattern001")
polarpattern2.Originals = [revolution2]
polarpattern2.Axis = (doc.getObject("Y_Axis"), [""])
polarpattern2.Angle = 360
polarpattern2.Occurrences = 6
body.Tip = polarpattern2

doc.recompute()
